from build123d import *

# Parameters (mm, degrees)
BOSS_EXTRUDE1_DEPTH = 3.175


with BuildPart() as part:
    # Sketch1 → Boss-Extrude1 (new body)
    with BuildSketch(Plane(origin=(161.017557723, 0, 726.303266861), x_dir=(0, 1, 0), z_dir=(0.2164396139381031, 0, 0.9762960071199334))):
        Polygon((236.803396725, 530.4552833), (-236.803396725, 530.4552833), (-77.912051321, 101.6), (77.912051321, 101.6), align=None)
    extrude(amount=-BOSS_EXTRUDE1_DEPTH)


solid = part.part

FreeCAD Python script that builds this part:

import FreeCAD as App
import Part
import Sketcher
from FreeCAD import Vector
Q = App.Units.Quantity

doc = App.newDocument("Part")
body = doc.addObject("PartDesign::Body", "Body")

# Sketch on an angled plane
sketch1 = doc.addObject("Sketcher::SketchObject", "Sketch")
body.addObject(sketch1)
sketch1.Placement = App.Placement(Vector(161.017558, 0, 726.303267), App.Rotation(Vector(0, 1, 0), Vector(-0.976296007, 0, 0.216439614), Vector(0.216439614, 0, 0.976296007), "ZXY"))
sketch1.addGeometry(Part.LineSegment(Vector(237, 530, 0), Vector(-237, 530, 0)), False)
sketch1.addGeometry(Part.LineSegment(Vector(-237, 530, 0), Vector(-78, 102, 0)), False)
sketch1.addGeometry(Part.LineSegment(Vector(-78, 102, 0), Vector(78, 102, 0)), False)
sketch1.addGeometry(Part.LineSegment(Vector(78, 102, 0), Vector(237, 530, 0)), False)
sketch1.addConstraint(Sketcher.Constraint("Coincident", 0, 2, 1, 1))
sketch1.addConstraint(Sketcher.Constraint("Coincident", 1, 2, 2, 1))
sketch1.addConstraint(Sketcher.Constraint("Coincident", 2, 2, 3, 1))
sketch1.addConstraint(Sketcher.Constraint("Coincident", 3, 2, 0, 1))
sketch1.addConstraint(Sketcher.Constraint("Horizontal", 0))
sketch1.addConstraint(Sketcher.Constraint("Horizontal", 2))
sketch1.addConstraint(Sketcher.Constraint("Equal", 1, 3))
sketch1.addConstraint(Sketcher.Constraint("DistanceY", -1, 1, 1, 2, Q("4 in")))
sketch1.addConstraint(Sketcher.Constraint("Distance", 1, Q("457.343759 mm")))
sketch1.addConstraint(Sketcher.Constraint("DistanceX", 0, 2, 0, 1, Q("473.606793 mm")))
sketch1.addConstraint(Sketcher.Constraint("DistanceX", 2, 1, 2, 2, Q("155.824103 mm")))
sketch1.addConstraint(Sketcher.Constraint("DistanceX", 1, 2, -1, 1, Q("77.912051 mm")))
pad1 = doc.addObject("PartDesign::Pad", "Pad")
body.addObject(pad1)
pad1.Profile = sketch1
pad1.Length = Q("0.125 in")
pad1.Reversed = True

doc.recompute()
